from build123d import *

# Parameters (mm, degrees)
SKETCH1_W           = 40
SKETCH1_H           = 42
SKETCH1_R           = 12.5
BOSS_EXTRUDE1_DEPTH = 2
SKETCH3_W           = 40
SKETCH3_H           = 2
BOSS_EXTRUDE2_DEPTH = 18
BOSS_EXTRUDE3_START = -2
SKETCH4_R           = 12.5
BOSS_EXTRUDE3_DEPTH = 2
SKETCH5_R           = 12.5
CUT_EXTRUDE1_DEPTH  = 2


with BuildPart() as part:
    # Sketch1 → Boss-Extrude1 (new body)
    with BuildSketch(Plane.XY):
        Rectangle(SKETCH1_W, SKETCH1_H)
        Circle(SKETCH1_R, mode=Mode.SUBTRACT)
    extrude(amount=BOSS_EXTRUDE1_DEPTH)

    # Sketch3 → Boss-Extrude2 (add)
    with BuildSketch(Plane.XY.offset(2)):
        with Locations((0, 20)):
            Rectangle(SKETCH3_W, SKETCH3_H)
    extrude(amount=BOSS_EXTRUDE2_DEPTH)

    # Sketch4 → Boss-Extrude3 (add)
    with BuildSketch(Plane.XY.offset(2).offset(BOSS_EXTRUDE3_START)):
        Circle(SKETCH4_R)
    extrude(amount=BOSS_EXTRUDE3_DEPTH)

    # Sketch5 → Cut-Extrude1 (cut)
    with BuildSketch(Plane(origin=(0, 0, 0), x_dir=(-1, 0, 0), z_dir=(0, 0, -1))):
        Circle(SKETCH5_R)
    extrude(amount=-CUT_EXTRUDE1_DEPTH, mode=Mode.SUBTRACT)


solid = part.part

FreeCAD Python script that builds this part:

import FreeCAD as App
import Part
import Sketcher

V = App.Vector

doc = App.newDocument("Part")
body = doc.addObject("PartDesign::Body", "Body")

sketch1 = body.newObject("Sketcher::SketchObject", "Sketch")
sketch1.AttachmentSupport = (doc.getObject("XY_Plane"), [""])
sketch1.MapMode = "FlatFace"
sketch1.addGeometry(Part.LineSegment(V(-20, 21, 0), V(-20, -21, 0)), False)
sketch1.addGeometry(Part.LineSegment(V(-20, -21, 0), V(20, -21, 0)), False)
sketch1.addGeometry(Part.LineSegment(V(20, -21, 0), V(20, 21, 0)), False)
sketch1.addGeometry(Part.LineSegment(V(20, 21, 0), V(-20, 21, 0)), False)
sketch1.addGeometry(Part.Circle(V(0, 0, 0), V(0, 0, 1), 12), False)
sketch1.addConstraint(Sketcher.Constraint("Coincident", 0, 2, 1, 1))
sketch1.addConstraint(Sketcher.Constraint("Coincident", 1, 2, 2, 1))
sketch1.addConstraint(Sketcher.Constraint("Coincident", 2, 2, 3, 1))
sketch1.addConstraint(Sketcher.Constraint("Coincident", 3, 2, 0, 1))
sketch1.addConstraint(Sketcher.Constraint("Vertical", 0))
sketch1.addConstraint(Sketcher.Constraint("Horizontal", 1))
sketch1.addConstraint(Sketcher.Constraint("Vertical", 2))
sketch1.addConstraint(Sketcher.Constraint("Horizontal", 3))
sketch1.addConstraint(Sketcher.Constraint("Coincident", 4, 3, -1, 1))
sketch1.addConstraint(Sketcher.Constraint("Symmetric", 0, 2, 2, 2, -1, 1))
sketch1.addConstraint(Sketcher.Constraint("Diameter", 4, 25.0))
sketch1.addConstraint(Sketcher.Constraint("DistanceX", 1, 1, 1, 2, 40.0))
sketch1.addConstraint(Sketcher.Constraint("DistanceY", 0, 2, 0, 1, 42.0))
pad1 = body.newObject("PartDesign::Pad", "Pad")
pad1.Profile = sketch1
pad1.Length = 2

sketch2 = body.newObject("Sketcher::SketchObject", "Sketch001")
sketch2.AttachmentSupport = (doc.getObject("XY_Plane"), [""])
sketch2.MapMode = "FlatFace"
sketch2.AttachmentOffset = App.Placement(V(0, 0, 2), App.Rotation())
sketch2.addGeometry(Part.LineSegment(V(-20, 21, 0), V(-20, 19, 0)), False)
sketch2.addGeometry(Part.LineSegment(V(-20, 19, 0), V(20, 19, 0)), False)
sketch2.addGeometry(Part.LineSegment(V(20, 19, 0), V(20, 21, 0)), False)
sketch2.addGeometry(Part.LineSegment(V(20, 21, 0), V(-20, 21, 0)), False)
sketch2.addConstraint(Sketcher.Constraint("Coincident", 0, 2, 1, 1))
sketch2.addConstraint(Sketcher.Constraint("Coincident", 1, 2, 2, 1))
sketch2.addConstraint(Sketcher.Constraint("Coincident", 2, 2, 3, 1))
sketch2.addConstraint(Sketcher.Constraint("Coincident", 3, 2, 0, 1))
sketch2.addConstraint(Sketcher.Constraint("Vertical", 0))
sketch2.addConstraint(Sketcher.Constraint("Horizontal", 1))
sketch2.addConstraint(Sketcher.Constraint("Vertical", 2))
sketch2.addConstraint(Sketcher.Constraint("Horizontal", 3))
sketch2.addConstraint(Sketcher.Constraint("DistanceX", 1, 1, 1, 2, 40.0))
sketch2.addConstraint(Sketcher.Constraint("DistanceY", 0, 2, 0, 1, 2.0))
sketch2.addConstraint(Sketcher.Constraint("DistanceX", 0, 2, -1, 1, 20.0))
sketch2.addConstraint(Sketcher.Constraint("DistanceY", -1, 1, 0, 2, 19.0))
pad2 = body.newObject("PartDesign::Pad", "Pad001")
pad2.Profile = sketch2
pad2.Length = 18

sketch3 = body.newObject("Sketcher::SketchObject", "Sketch002")
sketch3.AttachmentSupport = (doc.getObject("XY_Plane"), [""])
sketch3.MapMode = "FlatFace"
sketch3.addGeometry(Part.Circle(V(0, 0, 0), V(0, 0, 1), 12), False)
sketch3.addConstraint(Sketcher.Constraint("Coincident", 0, 3, -1, 1))
sketch3.addConstraint(Sketcher.Constraint("Diameter", 0, 25.0))
pad3 = body.newObject("PartDesign::Pad", "Pad002")
pad3.Profile = sketch3
pad3.Length = 2

sketch4 = body.newObject("Sketcher::SketchObject", "Sketch003")
sketch4.AttachmentSupport = (doc.getObject("XY_Plane"), [""])
sketch4.MapMode = "FlatFace"
sketch4.addGeometry(Part.Circle(V(0, 0, 0), V(0, 0, 1), 12), False)
sketch4.addConstraint(Sketcher.Constraint("Coincident", 0, 3, -1, 1))
sketch4.addConstraint(Sketcher.Constraint("Diameter", 0, 25.0))
pocket1 = body.newObject("PartDesign::Pocket", "Pocket")
pocket1.Profile = sketch4
pocket1.Length = 2
pocket1.Reversed = True

doc.recompute()
